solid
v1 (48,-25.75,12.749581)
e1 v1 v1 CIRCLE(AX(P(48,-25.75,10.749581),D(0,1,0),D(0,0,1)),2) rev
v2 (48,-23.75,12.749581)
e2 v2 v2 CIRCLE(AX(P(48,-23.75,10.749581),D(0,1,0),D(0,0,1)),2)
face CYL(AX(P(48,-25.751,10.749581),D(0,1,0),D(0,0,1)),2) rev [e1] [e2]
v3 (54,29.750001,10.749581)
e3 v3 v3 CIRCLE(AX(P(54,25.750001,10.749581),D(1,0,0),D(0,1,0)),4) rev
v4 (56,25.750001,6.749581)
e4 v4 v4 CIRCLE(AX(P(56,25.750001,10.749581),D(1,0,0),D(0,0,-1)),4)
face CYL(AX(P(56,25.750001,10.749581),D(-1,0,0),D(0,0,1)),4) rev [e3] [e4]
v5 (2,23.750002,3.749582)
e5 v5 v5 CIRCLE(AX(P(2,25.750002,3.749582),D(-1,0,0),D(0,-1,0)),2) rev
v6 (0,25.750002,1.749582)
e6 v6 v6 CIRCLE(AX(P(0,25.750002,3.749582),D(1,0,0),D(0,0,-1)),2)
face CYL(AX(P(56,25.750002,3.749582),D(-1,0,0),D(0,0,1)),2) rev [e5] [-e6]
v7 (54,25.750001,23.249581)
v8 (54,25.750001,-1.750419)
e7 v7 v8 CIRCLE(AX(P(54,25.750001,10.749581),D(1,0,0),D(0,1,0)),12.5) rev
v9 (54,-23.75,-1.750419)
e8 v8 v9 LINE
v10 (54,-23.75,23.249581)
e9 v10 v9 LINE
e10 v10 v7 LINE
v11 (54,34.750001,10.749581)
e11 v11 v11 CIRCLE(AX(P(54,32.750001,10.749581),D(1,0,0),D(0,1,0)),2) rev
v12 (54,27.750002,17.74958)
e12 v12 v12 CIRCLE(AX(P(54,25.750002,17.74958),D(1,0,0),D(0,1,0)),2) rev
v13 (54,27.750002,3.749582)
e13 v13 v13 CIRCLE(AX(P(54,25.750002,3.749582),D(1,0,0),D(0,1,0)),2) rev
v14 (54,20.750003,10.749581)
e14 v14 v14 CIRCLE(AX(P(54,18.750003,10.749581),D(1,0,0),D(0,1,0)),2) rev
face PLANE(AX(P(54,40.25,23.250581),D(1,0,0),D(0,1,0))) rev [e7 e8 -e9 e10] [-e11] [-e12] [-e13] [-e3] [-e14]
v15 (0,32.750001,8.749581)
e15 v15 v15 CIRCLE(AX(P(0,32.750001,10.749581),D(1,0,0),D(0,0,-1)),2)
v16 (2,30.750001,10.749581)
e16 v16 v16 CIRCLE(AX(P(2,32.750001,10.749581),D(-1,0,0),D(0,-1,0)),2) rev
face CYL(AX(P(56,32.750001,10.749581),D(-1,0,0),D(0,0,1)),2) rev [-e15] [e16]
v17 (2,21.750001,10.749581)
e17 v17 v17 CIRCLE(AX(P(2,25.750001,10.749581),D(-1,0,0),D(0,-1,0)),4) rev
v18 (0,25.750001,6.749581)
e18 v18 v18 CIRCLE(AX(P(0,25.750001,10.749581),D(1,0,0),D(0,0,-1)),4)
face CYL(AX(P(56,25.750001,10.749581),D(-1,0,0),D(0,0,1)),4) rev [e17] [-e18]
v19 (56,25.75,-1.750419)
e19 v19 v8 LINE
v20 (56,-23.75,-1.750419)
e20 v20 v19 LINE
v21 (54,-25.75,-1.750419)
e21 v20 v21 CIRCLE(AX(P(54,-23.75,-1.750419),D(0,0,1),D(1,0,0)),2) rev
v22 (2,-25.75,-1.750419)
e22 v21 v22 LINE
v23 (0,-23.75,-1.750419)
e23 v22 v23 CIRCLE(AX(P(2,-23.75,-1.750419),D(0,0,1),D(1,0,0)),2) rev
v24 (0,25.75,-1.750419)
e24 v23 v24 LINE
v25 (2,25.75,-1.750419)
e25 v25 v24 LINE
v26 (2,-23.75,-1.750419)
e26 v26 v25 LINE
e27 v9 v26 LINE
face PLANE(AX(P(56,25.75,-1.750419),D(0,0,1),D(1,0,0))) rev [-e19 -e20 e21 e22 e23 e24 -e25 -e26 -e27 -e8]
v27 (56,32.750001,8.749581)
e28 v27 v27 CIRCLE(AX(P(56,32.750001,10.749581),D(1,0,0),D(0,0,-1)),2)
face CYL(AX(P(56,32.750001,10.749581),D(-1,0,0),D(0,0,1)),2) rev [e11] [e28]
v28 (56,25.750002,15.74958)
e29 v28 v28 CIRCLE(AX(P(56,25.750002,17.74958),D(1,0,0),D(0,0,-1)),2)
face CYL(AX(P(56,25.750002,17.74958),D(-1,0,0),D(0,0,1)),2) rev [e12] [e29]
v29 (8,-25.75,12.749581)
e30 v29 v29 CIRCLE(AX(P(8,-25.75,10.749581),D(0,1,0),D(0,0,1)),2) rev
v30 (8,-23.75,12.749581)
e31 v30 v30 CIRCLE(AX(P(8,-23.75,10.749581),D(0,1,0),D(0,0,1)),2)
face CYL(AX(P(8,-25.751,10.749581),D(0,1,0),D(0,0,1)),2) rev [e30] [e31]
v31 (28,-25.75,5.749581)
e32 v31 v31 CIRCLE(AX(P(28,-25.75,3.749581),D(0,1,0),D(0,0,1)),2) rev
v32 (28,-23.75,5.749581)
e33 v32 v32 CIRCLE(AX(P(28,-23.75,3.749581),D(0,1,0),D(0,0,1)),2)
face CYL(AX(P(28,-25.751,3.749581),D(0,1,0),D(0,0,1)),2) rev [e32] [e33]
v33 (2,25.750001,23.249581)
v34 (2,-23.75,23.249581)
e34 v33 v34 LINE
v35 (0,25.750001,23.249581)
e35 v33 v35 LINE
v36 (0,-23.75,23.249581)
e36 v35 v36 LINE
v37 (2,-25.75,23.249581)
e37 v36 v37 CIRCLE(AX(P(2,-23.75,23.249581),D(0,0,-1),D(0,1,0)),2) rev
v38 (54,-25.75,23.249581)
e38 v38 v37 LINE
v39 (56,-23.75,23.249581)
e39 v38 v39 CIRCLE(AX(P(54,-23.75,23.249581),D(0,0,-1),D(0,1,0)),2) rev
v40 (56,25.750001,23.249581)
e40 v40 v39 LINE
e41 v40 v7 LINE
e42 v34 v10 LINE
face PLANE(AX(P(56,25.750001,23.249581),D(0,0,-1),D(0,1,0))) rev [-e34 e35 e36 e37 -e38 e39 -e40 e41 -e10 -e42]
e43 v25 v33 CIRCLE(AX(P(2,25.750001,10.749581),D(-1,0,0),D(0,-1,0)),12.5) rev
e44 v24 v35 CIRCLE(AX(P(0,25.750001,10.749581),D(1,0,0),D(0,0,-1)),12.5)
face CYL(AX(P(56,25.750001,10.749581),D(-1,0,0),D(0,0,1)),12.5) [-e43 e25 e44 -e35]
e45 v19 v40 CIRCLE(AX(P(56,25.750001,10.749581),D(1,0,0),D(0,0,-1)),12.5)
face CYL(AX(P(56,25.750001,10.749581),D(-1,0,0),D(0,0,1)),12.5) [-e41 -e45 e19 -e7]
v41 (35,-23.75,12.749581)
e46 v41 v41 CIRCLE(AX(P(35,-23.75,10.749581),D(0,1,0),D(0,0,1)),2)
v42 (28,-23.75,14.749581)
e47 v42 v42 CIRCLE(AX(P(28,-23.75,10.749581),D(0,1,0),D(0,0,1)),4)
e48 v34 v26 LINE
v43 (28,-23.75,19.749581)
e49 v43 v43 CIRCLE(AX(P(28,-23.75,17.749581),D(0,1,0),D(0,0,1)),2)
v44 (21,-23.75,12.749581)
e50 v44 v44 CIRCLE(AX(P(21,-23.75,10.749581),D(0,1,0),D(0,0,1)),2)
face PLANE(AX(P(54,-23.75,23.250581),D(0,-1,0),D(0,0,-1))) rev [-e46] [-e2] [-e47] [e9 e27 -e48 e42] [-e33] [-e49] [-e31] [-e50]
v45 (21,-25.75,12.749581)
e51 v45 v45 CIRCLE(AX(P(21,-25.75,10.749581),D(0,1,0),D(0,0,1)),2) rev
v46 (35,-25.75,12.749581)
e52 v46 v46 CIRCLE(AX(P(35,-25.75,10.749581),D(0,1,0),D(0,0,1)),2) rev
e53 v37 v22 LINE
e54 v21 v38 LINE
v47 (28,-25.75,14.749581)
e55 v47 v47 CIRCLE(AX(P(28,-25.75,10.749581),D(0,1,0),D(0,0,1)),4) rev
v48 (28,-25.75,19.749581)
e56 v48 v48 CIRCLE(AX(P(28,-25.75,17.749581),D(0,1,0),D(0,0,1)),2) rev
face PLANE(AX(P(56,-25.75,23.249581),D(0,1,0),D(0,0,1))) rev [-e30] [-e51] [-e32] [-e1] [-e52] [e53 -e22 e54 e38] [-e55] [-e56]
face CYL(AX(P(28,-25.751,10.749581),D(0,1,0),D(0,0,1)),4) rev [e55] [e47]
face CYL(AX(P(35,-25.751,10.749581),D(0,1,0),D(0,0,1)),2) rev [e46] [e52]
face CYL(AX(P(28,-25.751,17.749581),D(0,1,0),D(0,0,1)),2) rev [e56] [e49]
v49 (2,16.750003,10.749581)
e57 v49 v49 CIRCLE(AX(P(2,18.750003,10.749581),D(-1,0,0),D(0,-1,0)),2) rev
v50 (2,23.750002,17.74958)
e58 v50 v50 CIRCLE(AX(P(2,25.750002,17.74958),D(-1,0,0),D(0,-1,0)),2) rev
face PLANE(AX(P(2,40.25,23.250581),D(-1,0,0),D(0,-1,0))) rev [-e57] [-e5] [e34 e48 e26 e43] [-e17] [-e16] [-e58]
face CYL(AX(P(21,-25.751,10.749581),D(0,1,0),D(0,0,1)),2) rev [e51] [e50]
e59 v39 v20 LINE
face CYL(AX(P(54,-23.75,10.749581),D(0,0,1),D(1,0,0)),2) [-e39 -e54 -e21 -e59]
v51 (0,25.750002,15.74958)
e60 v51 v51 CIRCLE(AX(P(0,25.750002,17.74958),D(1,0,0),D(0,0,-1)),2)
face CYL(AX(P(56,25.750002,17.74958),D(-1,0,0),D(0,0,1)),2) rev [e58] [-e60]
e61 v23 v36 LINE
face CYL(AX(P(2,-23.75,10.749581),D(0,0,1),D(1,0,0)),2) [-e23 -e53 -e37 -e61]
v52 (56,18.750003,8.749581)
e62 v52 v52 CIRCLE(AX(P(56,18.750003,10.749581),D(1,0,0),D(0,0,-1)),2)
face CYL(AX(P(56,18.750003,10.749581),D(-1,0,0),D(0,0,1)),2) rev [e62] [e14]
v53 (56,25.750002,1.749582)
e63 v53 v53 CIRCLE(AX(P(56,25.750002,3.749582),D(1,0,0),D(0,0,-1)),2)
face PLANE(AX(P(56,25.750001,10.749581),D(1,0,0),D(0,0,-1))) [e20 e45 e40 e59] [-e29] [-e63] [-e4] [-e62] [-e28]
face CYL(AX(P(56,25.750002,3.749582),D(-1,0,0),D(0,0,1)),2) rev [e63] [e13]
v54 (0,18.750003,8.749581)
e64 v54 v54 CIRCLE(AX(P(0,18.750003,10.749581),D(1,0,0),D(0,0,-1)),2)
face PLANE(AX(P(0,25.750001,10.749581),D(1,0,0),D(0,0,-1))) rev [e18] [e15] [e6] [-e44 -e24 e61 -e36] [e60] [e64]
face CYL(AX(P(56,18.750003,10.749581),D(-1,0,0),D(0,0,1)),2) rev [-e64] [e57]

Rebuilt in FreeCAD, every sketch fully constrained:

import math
import FreeCAD as App
import Part
import Sketcher
Q = App.Units.Quantity


def edges_at(feature, points):
    """Names of the edges that pass closest to the given points."""
    edges = feature.Shape.Edges
    near = lambda p: min(range(len(edges)), key=lambda i: edges[i].distToShape(Part.Vertex(*p))[0])
    return sorted({f"Edge{near(p) + 1}" for p in points})


def add_polygon(sketch, points):
    """Adds a closed chain of lines whose ends are joined by coincident constraints."""
    first, n = sketch.GeometryCount, len(points)
    for a, b in zip(points, points[1:] + points[:1]):
        sketch.addGeometry(Part.LineSegment(App.Vector(*a, 0), App.Vector(*b, 0)), False)
    for i in range(n):
        sketch.addConstraint(Sketcher.Constraint("Coincident", first + i, 2, first + (i + 1) % n, 1))

doc = App.newDocument("Part")
body = doc.addObject("PartDesign::Body", "Body")

sketch1 = doc.addObject("Sketcher::SketchObject", "Sketch")
body.addObject(sketch1)
sketch1.AttachmentSupport = (doc.YZ_Plane, [""])
sketch1.MapMode = "FlatFace"
sketch1.addGeometry([
    Part.LineSegment(App.Vector(25.8, 23.2, 0), App.Vector(-25.8, 23.2, 0)),
    Part.LineSegment(App.Vector(-25.8, 23.2, 0), App.Vector(-25.8, -1.8, 0)),
    Part.LineSegment(App.Vector(-25.8, -1.8, 0), App.Vector(25.8, -1.8, 0)),
    Part.ArcOfCircle(Part.Circle(App.Vector(25.8, 10.7, 0), App.Vector(0, 0, 1), 12.5), math.radians(-90), math.radians(90)),
    Part.Circle(App.Vector(25.8, 17.7, 0), App.Vector(0, 0, 1), 2),
    Part.Circle(App.Vector(18.8, 10.7, 0), App.Vector(0, 0, 1), 2),
    Part.Circle(App.Vector(25.8, 10.7, 0), App.Vector(0, 0, 1), 4),
    Part.Circle(App.Vector(25.8, 3.7, 0), App.Vector(0, 0, 1), 2),
    Part.Circle(App.Vector(32.8, 10.7, 0), App.Vector(0, 0, 1), 2),
], False)
sketch1.addConstraint([
    Sketcher.Constraint("Coincident", 0, 2, 1, 1),
    Sketcher.Constraint("Coincident", 1, 2, 2, 1),
    Sketcher.Constraint("Tangent", 2, 2, 3, 1),
    Sketcher.Constraint("Tangent", 3, 2, 0, 1),
    Sketcher.Constraint("Horizontal", 0),
    Sketcher.Constraint("Vertical", 1),
    Sketcher.Constraint("Horizontal", 2),
    Sketcher.Constraint("Coincident", 6, 3, 3, 3),
    Sketcher.Constraint("Equal", 4, 5),
    Sketcher.Constraint("Equal", 5, 7),
    Sketcher.Constraint("Equal", 7, 8),
    Sketcher.Constraint("Horizontal", 3, 3, 5, 3),
    Sketcher.Constraint("Horizontal", 6, 3, 8, 3),
    Sketcher.Constraint("Vertical", 3, 3, 4, 3),
    Sketcher.Constraint("Vertical", 6, 3, 7, 3),
    Sketcher.Constraint("Diameter", 4, Q("4 mm")),
    Sketcher.Constraint("Diameter", 6, Q("8 mm")),
    Sketcher.Constraint("Radius", 3, Q("12.5 mm")),
    Sketcher.Constraint("DistanceX", 0, 2, 0, 1, Q("51.500001 mm")),
    Sketcher.Constraint("DistanceY", 3, 3, 4, 3, Q("6.999999 mm")),
    Sketcher.Constraint("DistanceX", 5, 3, 3, 3, Q("6.999998 mm")),
    Sketcher.Constraint("DistanceY", 7, 3, 3, 3, Q("6.999999 mm")),
    Sketcher.Constraint("DistanceX", 3, 3, 8, 3, Q("7 mm")),
    Sketcher.Constraint("DistanceX", -1, 1, 3, 3, Q("25.750001 mm")),
    Sketcher.Constraint("DistanceY", -1, 1, 3, 3, Q("10.749581 mm")),
])
pad1 = doc.addObject("PartDesign::Pad", "Pad")
body.addObject(pad1)
pad1.Profile = sketch1
pad1.Length = 56

sketch2 = doc.addObject("Sketcher::SketchObject", "Sketch001")
body.addObject(sketch2)
sketch2.AttachmentSupport = (doc.XY_Plane, [""])
sketch2.MapMode = "FlatFace"
sketch2.AttachmentOffset = App.Placement(App.Vector(0, 0, -1.750419), App.Rotation())
add_polygon(sketch2, [(54, 40), (54, -24), (2, -24), (2, 40)])
sketch2.addConstraint([
    Sketcher.Constraint("Vertical", 0),
    Sketcher.Constraint("Horizontal", 1),
    Sketcher.Constraint("Vertical", 2),
    Sketcher.Constraint("Horizontal", 3),
    Sketcher.Constraint("DistanceX", 1, 2, 1, 1, Q("52 mm")),
    Sketcher.Constraint("DistanceY", 0, 2, 0, 1, Q("64 mm")),
    Sketcher.Constraint("DistanceX", -1, 1, 0, 2, Q("54 mm")),
    Sketcher.Constraint("DistanceY", 0, 2, -1, 1, Q("23.75 mm")),
])
pocket1 = doc.addObject("PartDesign::Pocket", "Pocket")
body.addObject(pocket1)
pocket1.Profile = sketch2
pocket1.Type = "UpToFirst"
pocket1.Reversed = True

sketch3 = doc.addObject("Sketcher::SketchObject", "Sketch002")
body.addObject(sketch3)
sketch3.AttachmentSupport = (doc.XZ_Plane, [""])
sketch3.MapMode = "FlatFace"
sketch3.AttachmentOffset = App.Placement(App.Vector(0, 0, 23.75), App.Rotation())
sketch3.addGeometry(Part.Circle(App.Vector(28, 10.7, 0), App.Vector(0, 0, 1), 4), False)
sketch3.addConstraint([
    Sketcher.Constraint("Diameter", 0, Q("8 mm")),
    Sketcher.Constraint("DistanceX", -1, 1, 0, 3, Q("28 mm")),
    Sketcher.Constraint("DistanceY", -1, 1, 0, 3, Q("10.749581 mm")),
])
pocket2 = doc.addObject("PartDesign::Pocket", "Pocket001")
body.addObject(pocket2)
pocket2.Profile = sketch3
pocket2.Type = "UpToFirst"
pocket2.Reversed = True

sketch4 = doc.addObject("Sketcher::SketchObject", "Sketch003")
body.addObject(sketch4)
sketch4.AttachmentSupport = (doc.XZ_Plane, [""])
sketch4.MapMode = "FlatFace"
sketch4.AttachmentOffset = App.Placement(App.Vector(0, 0, 23.75), App.Rotation())
sketch4.addGeometry(Part.Circle(App.Vector(35, 10.7, 0), App.Vector(0, 0, 1), 2), False)
sketch4.addConstraint([
    Sketcher.Constraint("Diameter", 0, Q("4 mm")),
    Sketcher.Constraint("DistanceX", -1, 1, 0, 3, Q("35 mm")),
    Sketcher.Constraint("DistanceY", -1, 1, 0, 3, Q("10.749581 mm")),
])
pocket3 = doc.addObject("PartDesign::Pocket", "Pocket002")
body.addObject(pocket3)
pocket3.Profile = sketch4
pocket3.Type = "UpToFirst"
pocket3.Reversed = True

sketch5 = doc.addObject("Sketcher::SketchObject", "Sketch004")
body.addObject(sketch5)
sketch5.AttachmentSupport = (doc.XZ_Plane, [""])
sketch5.MapMode = "FlatFace"
sketch5.AttachmentOffset = App.Placement(App.Vector(0, 0, 23.75), App.Rotation())
sketch5.addGeometry(Part.Circle(App.Vector(28, 17.7, 0), App.Vector(0, 0, 1), 2), False)
sketch5.addConstraint([
    Sketcher.Constraint("Diameter", 0, Q("4 mm")),
    Sketcher.Constraint("DistanceX", -1, 1, 0, 3, Q("28 mm")),
    Sketcher.Constraint("DistanceY", -1, 1, 0, 3, Q("17.749581 mm")),
])
pocket4 = doc.addObject("PartDesign::Pocket", "Pocket003")
body.addObject(pocket4)
pocket4.Profile = sketch5
pocket4.Type = "UpToFirst"
pocket4.Reversed = True

sketch6 = doc.addObject("Sketcher::SketchObject", "Sketch005")
body.addObject(sketch6)
sketch6.AttachmentSupport = (doc.XZ_Plane, [""])
sketch6.MapMode = "FlatFace"
sketch6.AttachmentOffset = App.Placement(App.Vector(0, 0, 23.75), App.Rotation())
sketch6.addGeometry(Part.Circle(App.Vector(21, 10.7, 0), App.Vector(0, 0, 1), 2), False)
sketch6.addConstraint([
    Sketcher.Constraint("Diameter", 0, Q("4 mm")),
    Sketcher.Constraint("DistanceX", -1, 1, 0, 3, Q("21 mm")),
    Sketcher.Constraint("DistanceY", -1, 1, 0, 3, Q("10.749581 mm")),
])
pocket5 = doc.addObject("PartDesign::Pocket", "Pocket004")
body.addObject(pocket5)
pocket5.Profile = sketch6
pocket5.Type = "UpToFirst"
pocket5.Reversed = True

sketch7 = doc.addObject("Sketcher::SketchObject", "Sketch006")
body.addObject(sketch7)
sketch7.AttachmentSupport = (doc.XZ_Plane, [""])
sketch7.MapMode = "FlatFace"
sketch7.AttachmentOffset = App.Placement(App.Vector(0, 0, 23.75), App.Rotation())
sketch7.addGeometry(Part.Circle(App.Vector(28, 3.7, 0), App.Vector(0, 0, 1), 2), False)
sketch7.addConstraint([
    Sketcher.Constraint("Diameter", 0, Q("4 mm")),
    Sketcher.Constraint("DistanceX", -1, 1, 0, 3, Q("28 mm")),
    Sketcher.Constraint("DistanceY", -1, 1, 0, 3, Q("3.749581 mm")),
])
pocket6 = doc.addObject("PartDesign::Pocket", "Pocket005")
body.addObject(pocket6)
pocket6.Profile = sketch7
pocket6.Type = "UpToFirst"
pocket6.Reversed = True

sketch8 = doc.addObject("Sketcher::SketchObject", "Sketch007")
body.addObject(sketch8)
sketch8.AttachmentSupport = (doc.XZ_Plane, [""])
sketch8.MapMode = "FlatFace"
sketch8.AttachmentOffset = App.Placement(App.Vector(0, 0, 23.75), App.Rotation())
sketch8.addGeometry(Part.Circle(App.Vector(8, 10.7, 0), App.Vector(0, 0, 1), 2), False)
sketch8.addConstraint([
    Sketcher.Constraint("Diameter", 0, Q("4 mm")),
    Sketcher.Constraint("DistanceX", -1, 1, 0, 3, Q("8 mm")),
    Sketcher.Constraint("DistanceY", -1, 1, 0, 3, Q("10.749581 mm")),
])
pocket7 = doc.addObject("PartDesign::Pocket", "Pocket006")
body.addObject(pocket7)
pocket7.Profile = sketch8
pocket7.Type = "UpToFirst"
pocket7.Reversed = True

sketch9 = doc.addObject("Sketcher::SketchObject", "Sketch008")
body.addObject(sketch9)
sketch9.AttachmentSupport = (doc.XZ_Plane, [""])
sketch9.MapMode = "FlatFace"
sketch9.AttachmentOffset = App.Placement(App.Vector(0, 0, 23.75), App.Rotation())
sketch9.addGeometry(Part.Circle(App.Vector(48, 10.7, 0), App.Vector(0, 0, 1), 2), False)
sketch9.addConstraint([
    Sketcher.Constraint("Diameter", 0, Q("4 mm")),
    Sketcher.Constraint("DistanceX", -1, 1, 0, 3, Q("48 mm")),
    Sketcher.Constraint("DistanceY", -1, 1, 0, 3, Q("10.749581 mm")),
])
pocket8 = doc.addObject("PartDesign::Pocket", "Pocket007")
body.addObject(pocket8)
pocket8.Profile = sketch9
pocket8.Type = "UpToFirst"
pocket8.Reversed = True
doc.recompute()

fillet = doc.addObject("PartDesign::Fillet", "Fillet")
body.addObject(fillet)
fillet.Base = (pocket8, edges_at(pocket8, [(56, -25.75, 10.75)]))
fillet.Radius = 2
doc.recompute()

fillet2 = doc.addObject("PartDesign::Fillet", "Fillet001")
body.addObject(fillet2)
fillet2.Base = (fillet, edges_at(fillet, [(0, -25.75, 10.75)]))
fillet2.Radius = 2

doc.recompute()
